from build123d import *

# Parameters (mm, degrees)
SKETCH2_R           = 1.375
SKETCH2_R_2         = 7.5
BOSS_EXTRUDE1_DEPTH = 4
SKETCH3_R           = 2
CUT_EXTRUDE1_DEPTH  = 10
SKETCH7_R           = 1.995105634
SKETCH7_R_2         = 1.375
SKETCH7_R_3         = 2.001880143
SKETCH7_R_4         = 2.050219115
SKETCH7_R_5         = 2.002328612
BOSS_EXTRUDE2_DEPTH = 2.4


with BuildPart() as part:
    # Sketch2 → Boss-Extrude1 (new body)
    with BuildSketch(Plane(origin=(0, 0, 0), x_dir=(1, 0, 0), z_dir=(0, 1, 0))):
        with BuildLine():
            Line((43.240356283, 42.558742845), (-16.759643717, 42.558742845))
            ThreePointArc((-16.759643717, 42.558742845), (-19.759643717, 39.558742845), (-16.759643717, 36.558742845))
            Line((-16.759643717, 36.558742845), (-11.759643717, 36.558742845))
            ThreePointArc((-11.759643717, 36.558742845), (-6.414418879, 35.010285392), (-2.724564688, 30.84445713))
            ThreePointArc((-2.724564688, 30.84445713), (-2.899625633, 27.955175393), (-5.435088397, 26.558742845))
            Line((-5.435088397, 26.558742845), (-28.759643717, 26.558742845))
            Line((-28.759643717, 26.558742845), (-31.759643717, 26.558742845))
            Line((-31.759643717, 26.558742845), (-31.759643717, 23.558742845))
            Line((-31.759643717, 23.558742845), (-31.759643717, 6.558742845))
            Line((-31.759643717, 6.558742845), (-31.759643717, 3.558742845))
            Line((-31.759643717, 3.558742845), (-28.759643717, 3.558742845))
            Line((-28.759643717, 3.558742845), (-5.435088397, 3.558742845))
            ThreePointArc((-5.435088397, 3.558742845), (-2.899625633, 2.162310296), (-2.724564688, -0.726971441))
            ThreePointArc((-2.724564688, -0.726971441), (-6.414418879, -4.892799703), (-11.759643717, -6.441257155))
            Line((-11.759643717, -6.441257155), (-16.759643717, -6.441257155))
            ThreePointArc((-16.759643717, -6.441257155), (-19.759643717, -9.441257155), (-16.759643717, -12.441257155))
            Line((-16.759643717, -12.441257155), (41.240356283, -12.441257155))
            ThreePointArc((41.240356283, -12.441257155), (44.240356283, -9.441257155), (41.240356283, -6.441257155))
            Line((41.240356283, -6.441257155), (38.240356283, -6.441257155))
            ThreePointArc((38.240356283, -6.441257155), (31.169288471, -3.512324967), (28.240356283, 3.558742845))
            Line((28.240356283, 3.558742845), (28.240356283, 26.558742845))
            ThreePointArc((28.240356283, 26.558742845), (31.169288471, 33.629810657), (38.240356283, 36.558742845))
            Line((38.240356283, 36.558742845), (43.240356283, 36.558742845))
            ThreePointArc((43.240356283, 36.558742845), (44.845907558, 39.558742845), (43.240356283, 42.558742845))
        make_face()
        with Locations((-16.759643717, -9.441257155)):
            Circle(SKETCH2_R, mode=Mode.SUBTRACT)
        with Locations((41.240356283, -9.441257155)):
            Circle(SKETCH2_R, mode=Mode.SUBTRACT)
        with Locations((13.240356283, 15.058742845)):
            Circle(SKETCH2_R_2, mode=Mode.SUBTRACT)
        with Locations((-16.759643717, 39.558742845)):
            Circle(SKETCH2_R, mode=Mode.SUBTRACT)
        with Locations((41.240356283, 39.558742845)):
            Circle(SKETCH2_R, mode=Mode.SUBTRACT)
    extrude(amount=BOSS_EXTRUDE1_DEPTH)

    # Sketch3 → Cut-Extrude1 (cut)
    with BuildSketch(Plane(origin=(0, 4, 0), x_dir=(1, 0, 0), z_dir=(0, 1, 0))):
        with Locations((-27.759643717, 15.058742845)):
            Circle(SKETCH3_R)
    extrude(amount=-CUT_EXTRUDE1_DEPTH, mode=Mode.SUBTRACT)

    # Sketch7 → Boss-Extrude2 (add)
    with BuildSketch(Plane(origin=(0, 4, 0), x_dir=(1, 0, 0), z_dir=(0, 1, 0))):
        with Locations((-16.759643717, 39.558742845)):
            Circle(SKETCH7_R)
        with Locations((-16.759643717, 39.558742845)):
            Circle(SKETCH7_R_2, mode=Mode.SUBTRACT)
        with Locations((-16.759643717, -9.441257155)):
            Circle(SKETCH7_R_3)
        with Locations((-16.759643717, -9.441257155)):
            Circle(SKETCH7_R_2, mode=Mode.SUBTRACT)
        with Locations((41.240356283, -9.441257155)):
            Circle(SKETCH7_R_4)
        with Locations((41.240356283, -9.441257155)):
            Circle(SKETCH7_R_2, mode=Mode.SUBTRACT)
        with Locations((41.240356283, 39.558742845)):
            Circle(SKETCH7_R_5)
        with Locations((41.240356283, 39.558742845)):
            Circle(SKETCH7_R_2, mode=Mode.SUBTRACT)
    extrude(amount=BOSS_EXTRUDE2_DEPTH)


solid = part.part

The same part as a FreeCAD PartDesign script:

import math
import FreeCAD as App
import Part
import Sketcher
Q = App.Units.Quantity

doc = App.newDocument("Part")
body = doc.addObject("PartDesign::Body", "Body")

sketch1 = body.newObject("Sketcher::SketchObject", "Sketch")
sketch1.AttachmentSupport = (doc.getObject("XZ_Plane"), [""])
sketch1.MapMode = "FlatFace"
sketch1.addGeometry([
    Part.LineSegment(App.Vector(43.2, -42.6, 0), App.Vector(-16.8, -42.6, 0)),
    Part.ArcOfCircle(Part.Circle(App.Vector(-16.8, -39.6, 0), App.Vector(0, 0, 1), 3), math.radians(90), math.radians(270)),
    Part.LineSegment(App.Vector(-16.8, -36.6, 0), App.Vector(-11.8, -36.6, 0)),
    Part.ArcOfCircle(Part.Circle(App.Vector(-11.8, -26.6, 0), App.Vector(0, 0, 1), 10), math.radians(-90), math.radians(-25)),
    Part.ArcOfCircle(Part.Circle(App.Vector(-5.4, -29.6, 0), App.Vector(0, 0, 1), 3), math.radians(-25), math.radians(90)),
    Part.LineSegment(App.Vector(-5.4, -26.6, 0), App.Vector(-31.8, -26.6, 0)),
    Part.LineSegment(App.Vector(-31.8, -26.6, 0), App.Vector(-31.8, -3.6, 0)),
    Part.LineSegment(App.Vector(-31.8, -3.6, 0), App.Vector(-5.4, -3.6, 0)),
    Part.ArcOfCircle(Part.Circle(App.Vector(-5.4, -0.6, 0), App.Vector(0, 0, 1), 3), math.radians(-90), math.radians(25)),
    Part.ArcOfCircle(Part.Circle(App.Vector(-11.8, -3.6, 0), App.Vector(0, 0, 1), 10), math.radians(25), math.radians(90)),
    Part.LineSegment(App.Vector(-11.8, 6.4, 0), App.Vector(-16.8, 6.4, 0)),
    Part.ArcOfCircle(Part.Circle(App.Vector(-16.8, 9.4, 0), App.Vector(0, 0, 1), 3), math.radians(90), math.radians(270)),
    Part.LineSegment(App.Vector(-16.8, 12.4, 0), App.Vector(41.2, 12.4, 0)),
    Part.ArcOfCircle(Part.Circle(App.Vector(41.2, 9.4, 0), App.Vector(0, 0, 1), 3), math.radians(-90), math.radians(90)),
    Part.LineSegment(App.Vector(41.2, 6.4, 0), App.Vector(38.2, 6.4, 0)),
    Part.ArcOfCircle(Part.Circle(App.Vector(38.2, -3.6, 0), App.Vector(0, 0, 1), 10), math.radians(90), math.radians(180)),
    Part.LineSegment(App.Vector(28.2, -3.6, 0), App.Vector(28.2, -26.6, 0)),
    Part.ArcOfCircle(Part.Circle(App.Vector(38.2, -26.6, 0), App.Vector(0, 0, 1), 10), math.radians(180), math.radians(270)),
    Part.LineSegment(App.Vector(38.2, -36.6, 0), App.Vector(43.2, -36.6, 0)),
    Part.ArcOfCircle(Part.Circle(App.Vector(41.2, -39.6, 0), App.Vector(0, 0, 1), 3.6), math.radians(-56), math.radians(56)),
    Part.Circle(App.Vector(-16.8, 9.4, 0), App.Vector(0, 0, 1), 1.4),
    Part.Circle(App.Vector(41.2, 9.4, 0), App.Vector(0, 0, 1), 1.4),
    Part.Circle(App.Vector(-16.8, -39.6, 0), App.Vector(0, 0, 1), 1.4),
    Part.Circle(App.Vector(13.2, -15.1, 0), App.Vector(0, 0, 1), 7.5),
    Part.Circle(App.Vector(41.2, -39.6, 0), App.Vector(0, 0, 1), 1.4),
], False)
sketch1.addConstraint([
    Sketcher.Constraint("Tangent", 0, 2, 1, 2),
    Sketcher.Constraint("Tangent", 1, 1, 2, 1),
    Sketcher.Constraint("Tangent", 2, 2, 3, 1),
    Sketcher.Constraint("Tangent", 3, 2, 4, 1),
    Sketcher.Constraint("Tangent", 4, 2, 5, 1),
    Sketcher.Constraint("Coincident", 5, 2, 6, 1),
    Sketcher.Constraint("Coincident", 6, 2, 7, 1),
    Sketcher.Constraint("Tangent", 7, 2, 8, 1),
    Sketcher.Constraint("Tangent", 8, 2, 9, 1),
    Sketcher.Constraint("Tangent", 9, 2, 10, 1),
    Sketcher.Constraint("Tangent", 10, 2, 11, 2),
    Sketcher.Constraint("Tangent", 11, 1, 12, 1),
    Sketcher.Constraint("Tangent", 12, 2, 13, 2),
    Sketcher.Constraint("Tangent", 13, 1, 14, 1),
    Sketcher.Constraint("Tangent", 14, 2, 15, 1),
    Sketcher.Constraint("Tangent", 15, 2, 16, 1),
    Sketcher.Constraint("Tangent", 16, 2, 17, 1),
    Sketcher.Constraint("Tangent", 17, 2, 18, 1),
    Sketcher.Constraint("Coincident", 18, 2, 19, 2),
    Sketcher.Constraint("Coincident", 19, 1, 0, 1),
    Sketcher.Constraint("Horizontal", 0),
    Sketcher.Constraint("Horizontal", 2),
    Sketcher.Constraint("Horizontal", 5),
    Sketcher.Constraint("Vertical", 6),
    Sketcher.Constraint("Horizontal", 7),
    Sketcher.Constraint("Horizontal", 10),
    Sketcher.Constraint("Horizontal", 12),
    Sketcher.Constraint("Horizontal", 14),
    Sketcher.Constraint("Vertical", 16),
    Sketcher.Constraint("Horizontal", 18),
    Sketcher.Constraint("Coincident", 20, 3, 11, 3),
    Sketcher.Constraint("Coincident", 21, 3, 13, 3),
    Sketcher.Constraint("Coincident", 22, 3, 1, 3),
    Sketcher.Constraint("Coincident", 24, 3, 19, 3),
    Sketcher.Constraint("Equal", 1, 4),
    Sketcher.Constraint("Equal", 4, 8),
    Sketcher.Constraint("Equal", 3, 9),
    Sketcher.Constraint("Equal", 8, 11),
    Sketcher.Constraint("Equal", 11, 13),
    Sketcher.Constraint("Equal", 9, 15),
    Sketcher.Constraint("Equal", 15, 17),
    Sketcher.Constraint("Equal", 20, 21),
    Sketcher.Constraint("Equal", 21, 22),
    Sketcher.Constraint("Equal", 22, 24),
    Sketcher.Constraint("Horizontal", 3, 3, 17, 3),
    Sketcher.Constraint("Horizontal", 1, 3, 19, 3),
    Sketcher.Constraint("Horizontal", 17, 3, 4, 2),
    Sketcher.Constraint("Horizontal", 15, 3, 6, 2),
    Sketcher.Constraint("Vertical", 4, 3, 8, 3),
    Sketcher.Constraint("Vertical", 1, 3, 11, 3),
    Sketcher.Constraint("Vertical", 13, 3, 19, 3),
    Sketcher.Constraint("Equal", 10, 18),
    Sketcher.Constraint("Diameter", 23, Q("15 mm")),
    Sketcher.Constraint("Radius", 1, Q("3 mm")),
    Sketcher.Constraint("Radius", 3, Q("10 mm")),
    Sketcher.Constraint("Diameter", 20, Q("2.75 mm")),
    Sketcher.Constraint("DistanceX", 0, 2, 0, 1, Q("60 mm")),
    Sketcher.Constraint("DistanceX", 2, 1, 2, 2, Q("5 mm")),
    Sketcher.Constraint("DistanceX", 12, 1, 12, 2, Q("58 mm")),
    Sketcher.Constraint("DistanceY", 6, 1, 6, 2, Q("23 mm")),
    Sketcher.Constraint("DistanceX", 9, 3, 23, 3, Q("25 mm")),
    Sketcher.Constraint("DistanceX", 5, 2, 1, 1, Q("15 mm")),
    Sketcher.Constraint("DistanceY", 4, 3, 23, 3, Q("14.5 mm")),
    Sketcher.Constraint("DistanceX", 4, 3, -1, 1, Q("5.435088 mm")),
    Sketcher.Constraint("DistanceY", -1, 1, 8, 2, Q("0.726971 mm")),
])
pad1 = body.newObject("PartDesign::Pad", "Pad")
pad1.Profile = sketch1
pad1.Length = 4
pad1.Reversed = True

sketch2 = body.newObject("Sketcher::SketchObject", "Sketch001")
sketch2.AttachmentSupport = (doc.getObject("XZ_Plane"), [""])
sketch2.MapMode = "FlatFace"
sketch2.AttachmentOffset = App.Placement(App.Vector(0, 0, -4), App.Rotation())
sketch2.addGeometry(Part.Circle(App.Vector(-27.8, -15.1, 0), App.Vector(0, 0, 1), 2), False)
sketch2.addConstraint([
    Sketcher.Constraint("Diameter", 0, Q("4 mm")),
    Sketcher.Constraint("DistanceX", 0, 3, -1, 1, Q("27.759644 mm")),
    Sketcher.Constraint("DistanceY", 0, 3, -1, 1, Q("15.058743 mm")),
])
pocket1 = body.newObject("PartDesign::Pocket", "Pocket")
pocket1.Profile = sketch2
pocket1.Length = 10
pocket1.Reversed = True

sketch3 = body.newObject("Sketcher::SketchObject", "Sketch002")
sketch3.AttachmentSupport = (doc.getObject("XZ_Plane"), [""])
sketch3.MapMode = "FlatFace"
sketch3.AttachmentOffset = App.Placement(App.Vector(0, 0, -4), App.Rotation())
sketch3.addGeometry([
    Part.Circle(App.Vector(-16.8, -39.6, 0), App.Vector(0, 0, 1), 2),
    Part.Circle(App.Vector(-16.8, -39.6, 0), App.Vector(0, 0, 1), 1.4),
    Part.Circle(App.Vector(-16.8, 9.4, 0), App.Vector(0, 0, 1), 2),
    Part.Circle(App.Vector(-16.8, 9.4, 0), App.Vector(0, 0, 1), 1.4),
    Part.Circle(App.Vector(41.2, 9.4, 0), App.Vector(0, 0, 1), 2.1),
    Part.Circle(App.Vector(41.2, 9.4, 0), App.Vector(0, 0, 1), 1.4),
    Part.Circle(App.Vector(41.2, -39.6, 0), App.Vector(0, 0, 1), 2),
    Part.Circle(App.Vector(41.2, -39.6, 0), App.Vector(0, 0, 1), 1.4),
], False)
sketch3.addConstraint([
    Sketcher.Constraint("Coincident", 1, 3, 0, 3),
    Sketcher.Constraint("Coincident", 3, 3, 2, 3),
    Sketcher.Constraint("Coincident", 5, 3, 4, 3),
    Sketcher.Constraint("Coincident", 7, 3, 6, 3),
    Sketcher.Constraint("Equal", 1, 3),
    Sketcher.Constraint("Equal", 3, 5),
    Sketcher.Constraint("Equal", 5, 7),
    Sketcher.Constraint("Horizontal", 3, 3, 4, 3),
    Sketcher.Constraint("Horizontal", 1, 3, 6, 3),
    Sketcher.Constraint("Vertical", 1, 3, 2, 3),
    Sketcher.Constraint("Vertical", 5, 3, 6, 3),
    Sketcher.Constraint("Diameter", 1, Q("2.75 mm")),
    Sketcher.Constraint("DistanceY", 0, 3, 2, 3, Q("49 mm")),
    Sketcher.Constraint("DistanceX", 2, 3, 4, 3, Q("58 mm")),
    Sketcher.Constraint("Diameter", 0, Q("3.990211 mm")),
    Sketcher.Constraint("Diameter", 2, Q("4.00376 mm")),
    Sketcher.Constraint("Diameter", 4, Q("4.100438 mm")),
    Sketcher.Constraint("Diameter", 6, Q("4.004657 mm")),
    Sketcher.Constraint("DistanceX", 0, 3, -1, 1, Q("16.759644 mm")),
    Sketcher.Constraint("DistanceY", 0, 3, -1, 1, Q("39.558743 mm")),
])
pad2 = body.newObject("PartDesign::Pad", "Pad001")
pad2.Profile = sketch3
pad2.Length = 2.4
pad2.Reversed = True

doc.recompute()
